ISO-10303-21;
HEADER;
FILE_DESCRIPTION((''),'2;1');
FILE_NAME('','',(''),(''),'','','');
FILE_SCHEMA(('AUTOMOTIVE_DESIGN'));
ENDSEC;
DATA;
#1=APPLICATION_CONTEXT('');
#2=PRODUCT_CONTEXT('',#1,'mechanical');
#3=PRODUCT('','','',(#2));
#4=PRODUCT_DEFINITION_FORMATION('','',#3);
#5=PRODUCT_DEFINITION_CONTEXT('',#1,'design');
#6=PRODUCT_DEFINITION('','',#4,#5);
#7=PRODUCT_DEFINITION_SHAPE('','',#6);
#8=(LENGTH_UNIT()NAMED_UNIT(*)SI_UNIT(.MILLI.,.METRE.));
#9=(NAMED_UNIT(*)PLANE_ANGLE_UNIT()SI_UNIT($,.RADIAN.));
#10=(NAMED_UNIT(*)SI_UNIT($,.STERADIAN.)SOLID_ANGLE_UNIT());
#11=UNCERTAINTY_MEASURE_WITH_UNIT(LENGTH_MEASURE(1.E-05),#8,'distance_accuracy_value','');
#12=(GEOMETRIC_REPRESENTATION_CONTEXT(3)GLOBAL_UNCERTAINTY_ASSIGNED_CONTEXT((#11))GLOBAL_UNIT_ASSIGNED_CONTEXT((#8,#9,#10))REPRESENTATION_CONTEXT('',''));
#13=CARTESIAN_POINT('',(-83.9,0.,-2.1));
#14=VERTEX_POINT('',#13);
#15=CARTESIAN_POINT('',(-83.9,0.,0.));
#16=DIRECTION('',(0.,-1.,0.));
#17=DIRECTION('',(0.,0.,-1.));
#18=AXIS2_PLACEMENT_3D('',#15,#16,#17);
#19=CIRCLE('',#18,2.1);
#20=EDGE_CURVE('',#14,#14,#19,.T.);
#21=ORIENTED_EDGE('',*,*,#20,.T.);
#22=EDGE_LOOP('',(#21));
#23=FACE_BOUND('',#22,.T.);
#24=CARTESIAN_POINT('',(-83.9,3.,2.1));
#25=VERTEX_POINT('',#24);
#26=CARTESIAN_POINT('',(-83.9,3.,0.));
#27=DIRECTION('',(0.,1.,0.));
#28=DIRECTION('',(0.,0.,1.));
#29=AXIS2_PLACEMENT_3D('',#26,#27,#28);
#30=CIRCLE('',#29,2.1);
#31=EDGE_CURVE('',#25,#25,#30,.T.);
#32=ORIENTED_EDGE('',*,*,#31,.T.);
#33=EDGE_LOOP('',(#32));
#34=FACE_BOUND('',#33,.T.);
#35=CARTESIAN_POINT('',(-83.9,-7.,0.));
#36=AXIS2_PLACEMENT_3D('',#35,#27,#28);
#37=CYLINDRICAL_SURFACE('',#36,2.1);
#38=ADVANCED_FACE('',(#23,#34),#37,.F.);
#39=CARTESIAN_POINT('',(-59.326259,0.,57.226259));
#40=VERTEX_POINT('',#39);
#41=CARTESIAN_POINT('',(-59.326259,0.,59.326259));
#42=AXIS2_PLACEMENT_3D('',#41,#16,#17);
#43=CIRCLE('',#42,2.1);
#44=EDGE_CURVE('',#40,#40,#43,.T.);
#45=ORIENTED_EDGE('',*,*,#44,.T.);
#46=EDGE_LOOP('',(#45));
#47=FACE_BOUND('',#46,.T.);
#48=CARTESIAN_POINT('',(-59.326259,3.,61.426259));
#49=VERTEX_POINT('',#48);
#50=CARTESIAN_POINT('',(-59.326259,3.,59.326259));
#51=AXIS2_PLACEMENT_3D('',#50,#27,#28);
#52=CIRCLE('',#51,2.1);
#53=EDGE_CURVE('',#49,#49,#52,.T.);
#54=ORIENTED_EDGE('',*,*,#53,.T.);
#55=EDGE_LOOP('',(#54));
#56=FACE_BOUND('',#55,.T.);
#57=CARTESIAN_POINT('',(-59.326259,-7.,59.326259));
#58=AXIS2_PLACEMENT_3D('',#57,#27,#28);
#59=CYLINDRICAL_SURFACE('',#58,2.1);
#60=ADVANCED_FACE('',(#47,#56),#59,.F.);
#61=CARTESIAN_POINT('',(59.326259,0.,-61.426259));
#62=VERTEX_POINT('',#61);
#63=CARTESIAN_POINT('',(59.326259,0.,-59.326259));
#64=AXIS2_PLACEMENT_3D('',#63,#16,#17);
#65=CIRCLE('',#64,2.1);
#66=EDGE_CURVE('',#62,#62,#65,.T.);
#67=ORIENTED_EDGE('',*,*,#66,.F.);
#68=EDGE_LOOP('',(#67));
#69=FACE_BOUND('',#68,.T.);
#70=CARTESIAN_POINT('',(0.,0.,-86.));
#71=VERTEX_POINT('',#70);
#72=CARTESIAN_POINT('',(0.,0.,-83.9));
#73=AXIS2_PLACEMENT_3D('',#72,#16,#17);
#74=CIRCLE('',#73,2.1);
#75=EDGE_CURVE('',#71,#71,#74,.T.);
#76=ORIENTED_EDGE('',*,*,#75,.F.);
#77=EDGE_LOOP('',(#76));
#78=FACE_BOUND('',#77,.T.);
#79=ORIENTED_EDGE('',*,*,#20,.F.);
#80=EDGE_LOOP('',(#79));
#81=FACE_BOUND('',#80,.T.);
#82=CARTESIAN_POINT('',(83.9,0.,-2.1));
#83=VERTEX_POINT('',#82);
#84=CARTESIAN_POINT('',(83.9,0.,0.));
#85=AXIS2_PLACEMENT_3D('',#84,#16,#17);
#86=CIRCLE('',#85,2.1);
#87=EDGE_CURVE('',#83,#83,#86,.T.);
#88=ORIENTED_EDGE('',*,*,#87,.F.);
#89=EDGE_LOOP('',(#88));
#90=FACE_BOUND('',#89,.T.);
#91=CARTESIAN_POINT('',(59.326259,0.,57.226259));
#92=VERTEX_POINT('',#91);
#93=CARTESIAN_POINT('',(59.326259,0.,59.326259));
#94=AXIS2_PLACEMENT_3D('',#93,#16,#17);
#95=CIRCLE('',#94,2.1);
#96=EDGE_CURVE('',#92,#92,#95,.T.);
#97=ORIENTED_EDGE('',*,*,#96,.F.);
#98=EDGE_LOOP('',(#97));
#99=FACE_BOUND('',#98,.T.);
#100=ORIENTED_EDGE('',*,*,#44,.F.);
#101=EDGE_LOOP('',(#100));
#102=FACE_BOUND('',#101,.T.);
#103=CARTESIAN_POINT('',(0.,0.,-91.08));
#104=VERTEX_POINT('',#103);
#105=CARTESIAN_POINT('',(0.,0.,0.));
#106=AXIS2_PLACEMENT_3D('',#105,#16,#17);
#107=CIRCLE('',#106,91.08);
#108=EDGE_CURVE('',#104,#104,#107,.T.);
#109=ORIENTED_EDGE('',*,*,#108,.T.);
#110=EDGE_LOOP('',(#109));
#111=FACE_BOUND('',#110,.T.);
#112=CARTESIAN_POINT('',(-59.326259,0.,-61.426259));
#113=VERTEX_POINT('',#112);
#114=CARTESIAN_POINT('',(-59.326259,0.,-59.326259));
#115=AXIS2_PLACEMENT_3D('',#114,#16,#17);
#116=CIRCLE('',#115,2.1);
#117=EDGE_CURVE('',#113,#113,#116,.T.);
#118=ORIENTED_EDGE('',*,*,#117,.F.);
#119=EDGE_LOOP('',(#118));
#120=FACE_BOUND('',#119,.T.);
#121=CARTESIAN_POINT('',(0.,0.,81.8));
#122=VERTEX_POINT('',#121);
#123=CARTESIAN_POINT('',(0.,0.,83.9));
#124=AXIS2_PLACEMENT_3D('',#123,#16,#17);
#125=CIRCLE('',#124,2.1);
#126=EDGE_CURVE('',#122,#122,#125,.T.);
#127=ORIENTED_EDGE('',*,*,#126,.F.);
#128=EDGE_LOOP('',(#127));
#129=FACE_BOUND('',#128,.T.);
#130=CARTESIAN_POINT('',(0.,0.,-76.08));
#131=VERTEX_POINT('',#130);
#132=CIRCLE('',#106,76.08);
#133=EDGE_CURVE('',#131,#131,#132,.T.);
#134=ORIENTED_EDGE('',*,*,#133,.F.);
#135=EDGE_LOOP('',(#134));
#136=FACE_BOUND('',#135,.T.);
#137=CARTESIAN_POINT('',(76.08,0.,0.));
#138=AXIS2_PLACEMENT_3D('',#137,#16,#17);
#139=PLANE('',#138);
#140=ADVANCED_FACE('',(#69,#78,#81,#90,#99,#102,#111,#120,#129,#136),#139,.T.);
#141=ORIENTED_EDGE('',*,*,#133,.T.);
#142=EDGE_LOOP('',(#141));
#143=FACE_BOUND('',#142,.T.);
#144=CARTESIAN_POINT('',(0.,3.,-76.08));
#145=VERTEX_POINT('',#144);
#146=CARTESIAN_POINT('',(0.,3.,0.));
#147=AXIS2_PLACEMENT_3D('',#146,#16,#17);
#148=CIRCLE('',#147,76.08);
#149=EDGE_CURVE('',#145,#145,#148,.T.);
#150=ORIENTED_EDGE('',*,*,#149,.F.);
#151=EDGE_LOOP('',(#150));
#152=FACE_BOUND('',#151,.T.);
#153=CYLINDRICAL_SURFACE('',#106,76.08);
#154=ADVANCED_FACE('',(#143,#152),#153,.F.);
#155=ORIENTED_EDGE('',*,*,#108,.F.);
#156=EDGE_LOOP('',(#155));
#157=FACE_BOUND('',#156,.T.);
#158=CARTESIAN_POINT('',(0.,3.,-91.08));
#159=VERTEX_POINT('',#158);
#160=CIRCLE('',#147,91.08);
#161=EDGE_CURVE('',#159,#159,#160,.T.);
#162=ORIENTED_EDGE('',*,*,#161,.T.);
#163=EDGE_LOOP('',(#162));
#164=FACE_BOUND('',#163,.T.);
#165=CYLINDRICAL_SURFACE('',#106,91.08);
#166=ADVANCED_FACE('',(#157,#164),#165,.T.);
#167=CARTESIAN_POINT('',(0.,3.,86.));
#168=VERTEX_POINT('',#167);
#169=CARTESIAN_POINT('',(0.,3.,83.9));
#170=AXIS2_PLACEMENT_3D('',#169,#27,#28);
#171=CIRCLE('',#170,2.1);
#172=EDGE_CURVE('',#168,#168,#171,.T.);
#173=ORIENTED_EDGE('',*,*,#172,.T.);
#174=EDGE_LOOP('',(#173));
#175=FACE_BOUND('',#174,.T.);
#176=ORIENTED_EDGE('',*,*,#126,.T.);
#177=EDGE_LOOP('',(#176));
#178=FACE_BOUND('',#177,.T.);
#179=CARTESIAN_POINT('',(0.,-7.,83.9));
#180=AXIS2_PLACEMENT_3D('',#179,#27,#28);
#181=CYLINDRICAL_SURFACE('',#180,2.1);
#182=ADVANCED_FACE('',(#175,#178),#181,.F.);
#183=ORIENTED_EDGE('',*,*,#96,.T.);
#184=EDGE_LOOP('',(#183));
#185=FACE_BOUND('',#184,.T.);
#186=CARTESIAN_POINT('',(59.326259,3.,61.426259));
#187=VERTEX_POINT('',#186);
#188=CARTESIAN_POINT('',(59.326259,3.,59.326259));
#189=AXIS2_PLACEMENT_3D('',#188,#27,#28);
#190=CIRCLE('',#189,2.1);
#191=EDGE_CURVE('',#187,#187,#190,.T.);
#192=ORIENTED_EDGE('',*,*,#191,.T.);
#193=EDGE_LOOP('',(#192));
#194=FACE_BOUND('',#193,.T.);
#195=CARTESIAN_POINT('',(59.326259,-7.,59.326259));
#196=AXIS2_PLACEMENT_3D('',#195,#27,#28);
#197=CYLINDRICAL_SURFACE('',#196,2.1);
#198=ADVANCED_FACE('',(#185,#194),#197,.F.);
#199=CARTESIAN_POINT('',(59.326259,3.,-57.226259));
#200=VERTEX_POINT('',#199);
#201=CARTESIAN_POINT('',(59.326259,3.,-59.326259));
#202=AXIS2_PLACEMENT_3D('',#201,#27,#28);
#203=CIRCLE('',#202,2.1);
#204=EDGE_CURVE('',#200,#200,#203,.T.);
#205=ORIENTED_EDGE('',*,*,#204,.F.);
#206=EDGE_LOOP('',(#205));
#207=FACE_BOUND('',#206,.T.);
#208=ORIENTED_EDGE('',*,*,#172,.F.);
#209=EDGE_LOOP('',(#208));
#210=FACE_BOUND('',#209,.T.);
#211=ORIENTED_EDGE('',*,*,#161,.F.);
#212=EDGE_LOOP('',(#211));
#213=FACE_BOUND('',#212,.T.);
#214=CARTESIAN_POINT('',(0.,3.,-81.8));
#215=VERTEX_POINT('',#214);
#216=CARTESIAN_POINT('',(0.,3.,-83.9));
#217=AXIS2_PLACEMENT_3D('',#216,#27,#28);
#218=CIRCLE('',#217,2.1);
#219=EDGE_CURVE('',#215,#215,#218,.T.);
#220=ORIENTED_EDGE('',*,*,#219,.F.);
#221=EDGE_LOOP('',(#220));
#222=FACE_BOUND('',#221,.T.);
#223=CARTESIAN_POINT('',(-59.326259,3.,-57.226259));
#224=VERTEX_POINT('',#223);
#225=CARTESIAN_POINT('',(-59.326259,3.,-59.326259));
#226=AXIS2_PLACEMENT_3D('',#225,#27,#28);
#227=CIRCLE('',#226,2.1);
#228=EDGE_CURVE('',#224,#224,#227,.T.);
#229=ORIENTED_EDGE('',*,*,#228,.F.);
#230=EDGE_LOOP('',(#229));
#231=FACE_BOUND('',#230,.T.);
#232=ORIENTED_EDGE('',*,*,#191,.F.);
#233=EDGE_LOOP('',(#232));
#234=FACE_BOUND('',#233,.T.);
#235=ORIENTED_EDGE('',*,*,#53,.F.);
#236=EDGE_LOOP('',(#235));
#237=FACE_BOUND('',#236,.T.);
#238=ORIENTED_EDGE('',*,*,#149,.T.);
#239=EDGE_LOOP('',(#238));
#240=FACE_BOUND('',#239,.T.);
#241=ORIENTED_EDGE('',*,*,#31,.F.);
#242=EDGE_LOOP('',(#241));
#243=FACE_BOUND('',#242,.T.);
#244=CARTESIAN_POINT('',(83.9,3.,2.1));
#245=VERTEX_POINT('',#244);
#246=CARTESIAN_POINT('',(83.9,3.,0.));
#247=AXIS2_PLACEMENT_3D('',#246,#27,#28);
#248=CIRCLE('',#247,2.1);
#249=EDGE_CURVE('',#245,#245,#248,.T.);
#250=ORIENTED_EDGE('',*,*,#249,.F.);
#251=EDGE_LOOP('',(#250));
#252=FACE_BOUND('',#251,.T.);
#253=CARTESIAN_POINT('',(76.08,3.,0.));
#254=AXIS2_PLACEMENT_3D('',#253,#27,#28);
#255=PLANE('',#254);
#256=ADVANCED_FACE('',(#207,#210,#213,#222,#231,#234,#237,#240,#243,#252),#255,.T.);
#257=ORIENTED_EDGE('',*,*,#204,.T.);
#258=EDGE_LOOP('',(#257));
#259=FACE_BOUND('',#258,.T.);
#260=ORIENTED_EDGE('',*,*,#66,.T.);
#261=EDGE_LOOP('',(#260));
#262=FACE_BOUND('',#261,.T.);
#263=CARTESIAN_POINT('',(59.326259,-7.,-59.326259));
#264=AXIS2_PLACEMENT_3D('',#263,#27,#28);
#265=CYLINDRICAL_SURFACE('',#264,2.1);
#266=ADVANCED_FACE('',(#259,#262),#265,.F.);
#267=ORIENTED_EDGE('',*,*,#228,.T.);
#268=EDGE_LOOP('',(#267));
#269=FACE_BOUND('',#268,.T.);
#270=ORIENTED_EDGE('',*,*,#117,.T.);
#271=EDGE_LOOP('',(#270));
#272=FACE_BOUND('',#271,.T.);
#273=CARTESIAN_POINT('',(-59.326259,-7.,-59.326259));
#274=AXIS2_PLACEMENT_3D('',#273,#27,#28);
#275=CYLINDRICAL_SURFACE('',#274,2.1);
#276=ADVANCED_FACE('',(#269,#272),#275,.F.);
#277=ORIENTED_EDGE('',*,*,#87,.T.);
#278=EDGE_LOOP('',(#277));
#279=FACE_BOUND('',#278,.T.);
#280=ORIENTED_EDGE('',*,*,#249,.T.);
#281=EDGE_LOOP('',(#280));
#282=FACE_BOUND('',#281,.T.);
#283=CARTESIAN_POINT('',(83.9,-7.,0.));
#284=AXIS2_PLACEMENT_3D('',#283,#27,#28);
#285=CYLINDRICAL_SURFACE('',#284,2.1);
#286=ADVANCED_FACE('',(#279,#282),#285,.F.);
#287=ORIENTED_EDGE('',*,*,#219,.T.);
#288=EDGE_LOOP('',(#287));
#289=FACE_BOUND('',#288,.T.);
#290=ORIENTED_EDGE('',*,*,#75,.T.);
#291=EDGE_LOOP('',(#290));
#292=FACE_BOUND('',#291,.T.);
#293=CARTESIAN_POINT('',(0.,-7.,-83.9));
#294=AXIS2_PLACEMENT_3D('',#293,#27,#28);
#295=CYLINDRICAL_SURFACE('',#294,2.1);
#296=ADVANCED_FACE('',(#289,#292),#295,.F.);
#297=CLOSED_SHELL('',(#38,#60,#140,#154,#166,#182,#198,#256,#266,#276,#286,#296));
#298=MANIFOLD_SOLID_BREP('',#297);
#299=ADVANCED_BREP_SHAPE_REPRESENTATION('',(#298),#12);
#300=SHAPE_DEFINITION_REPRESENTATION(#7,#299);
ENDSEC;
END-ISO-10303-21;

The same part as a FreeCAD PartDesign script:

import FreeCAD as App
import Part
import Sketcher

V = App.Vector

doc = App.newDocument("Part")
body = doc.addObject("PartDesign::Body", "Body")

# Sketch on XY plane
sketch1 = body.newObject("Sketcher::SketchObject", "Sketch")
sketch1.AttachmentSupport = (doc.getObject("XY_Plane"), [""])
sketch1.MapMode = "FlatFace"
sketch1.addGeometry(Part.LineSegment(V(76.08, 3, 0), V(76.08, 0, 0)), False)
sketch1.addGeometry(Part.LineSegment(V(76.08, 0, 0), V(91.08, 0, 0)), False)
sketch1.addGeometry(Part.LineSegment(V(91.08, 0, 0), V(91.08, 3, 0)), False)
sketch1.addGeometry(Part.LineSegment(V(91.08, 3, 0), V(76.08, 3, 0)), False)
sketch1.addConstraint(Sketcher.Constraint("Coincident", 0, 2, 1, 1))
sketch1.addConstraint(Sketcher.Constraint("Coincident", 1, 2, 2, 1))
sketch1.addConstraint(Sketcher.Constraint("Coincident", 2, 2, 3, 1))
sketch1.addConstraint(Sketcher.Constraint("Coincident", 3, 2, 0, 1))
sketch1.addConstraint(Sketcher.Constraint("Vertical", 0))
sketch1.addConstraint(Sketcher.Constraint("Horizontal", 1))
sketch1.addConstraint(Sketcher.Constraint("Vertical", 2))
sketch1.addConstraint(Sketcher.Constraint("Horizontal", 3))
sketch1.addConstraint(Sketcher.Constraint("PointOnObject", 0, 2, -1))
sketch1.addConstraint(Sketcher.Constraint("DistanceX", 1, 1, 1, 2, 15.0))
sketch1.addConstraint(Sketcher.Constraint("DistanceY", 0, 2, 0, 1, 3.0))
sketch1.addConstraint(Sketcher.Constraint("DistanceX", -1, 1, 0, 2, 76.08))
revolution = body.newObject("PartDesign::Revolution", "Revolution")
revolution.Profile = sketch1
revolution.ReferenceAxis = (sketch1, ["V_Axis"])
revolution.Angle = 360

# Sketch on XZ plane
sketch2 = body.newObject("Sketcher::SketchObject", "Sketch001")
sketch2.AttachmentSupport = (doc.getObject("XZ_Plane"), [""])
sketch2.MapMode = "FlatFace"
sketch2.AttachmentOffset = App.Placement(V(0, 0, -3), App.Rotation())
sketch2.addGeometry(Part.Circle(V(-83.9, 0, 0), V(0, 0, 1), 2.1), False)
sketch2.addGeometry(Part.Circle(V(-59.326259, -59.326259, 0), V(0, 0, 1), 2.1), False)
sketch2.addGeometry(Part.Circle(V(0, -83.9, 0), V(0, 0, 1), 2.1), False)
sketch2.addGeometry(Part.Circle(V(59.326259, -59.326259, 0), V(0, 0, 1), 2.1), False)
sketch2.addGeometry(Part.Circle(V(83.9, 0, 0), V(0, 0, 1), 2.1), False)
sketch2.addGeometry(Part.Circle(V(59.326259, 59.326259, 0), V(0, 0, 1), 2.1), False)
sketch2.addGeometry(Part.Circle(V(0, 83.9, 0), V(0, 0, 1), 2.1), False)
sketch2.addGeometry(Part.Circle(V(-59.326259, 59.326259, 0), V(0, 0, 1), 2.1), False)
sketch2.addConstraint(Sketcher.Constraint("Equal", 0, 1))
sketch2.addConstraint(Sketcher.Constraint("Equal", 1, 2))
sketch2.addConstraint(Sketcher.Constraint("Equal", 2, 3))
sketch2.addConstraint(Sketcher.Constraint("Equal", 3, 4))
sketch2.addConstraint(Sketcher.Constraint("Equal", 4, 5))
sketch2.addConstraint(Sketcher.Constraint("Equal", 5, 6))
sketch2.addConstraint(Sketcher.Constraint("Equal", 6, 7))
sketch2.addConstraint(Sketcher.Constraint("Symmetric", 0, 3, 4, 3, -1, 1))
sketch2.addConstraint(Sketcher.Constraint("Symmetric", 1, 3, 5, 3, -1, 1))
sketch2.addConstraint(Sketcher.Constraint("Symmetric", 2, 3, 6, 3, -1, 1))
sketch2.addConstraint(Sketcher.Constraint("Symmetric", 3, 3, 7, 3, -1, 1))
sketch2.addConstraint(Sketcher.Constraint("Symmetric", 1, 3, 3, 3, -2))
sketch2.addConstraint(Sketcher.Constraint("PointOnObject", 0, 3, -1))
sketch2.addConstraint(Sketcher.Constraint("PointOnObject", 2, 3, -2))
sketch2.addConstraint(Sketcher.Constraint("Diameter", 0, 4.2))
sketch2.addConstraint(Sketcher.Constraint("DistanceX", 0, 3, -1, 1, 83.9))
sketch2.addConstraint(Sketcher.Constraint("DistanceY", 2, 3, -1, 1, 83.9))
sketch2.addConstraint(Sketcher.Constraint("DistanceX", 1, 3, -1, 1, 59.326259))
sketch2.addConstraint(Sketcher.Constraint("DistanceY", 1, 3, -1, 1, 59.326259))
pocket1 = body.newObject("PartDesign::Pocket", "Pocket")
pocket1.Profile = sketch2
pocket1.Length = 10
pocket1.Reversed = True

doc.recompute()
